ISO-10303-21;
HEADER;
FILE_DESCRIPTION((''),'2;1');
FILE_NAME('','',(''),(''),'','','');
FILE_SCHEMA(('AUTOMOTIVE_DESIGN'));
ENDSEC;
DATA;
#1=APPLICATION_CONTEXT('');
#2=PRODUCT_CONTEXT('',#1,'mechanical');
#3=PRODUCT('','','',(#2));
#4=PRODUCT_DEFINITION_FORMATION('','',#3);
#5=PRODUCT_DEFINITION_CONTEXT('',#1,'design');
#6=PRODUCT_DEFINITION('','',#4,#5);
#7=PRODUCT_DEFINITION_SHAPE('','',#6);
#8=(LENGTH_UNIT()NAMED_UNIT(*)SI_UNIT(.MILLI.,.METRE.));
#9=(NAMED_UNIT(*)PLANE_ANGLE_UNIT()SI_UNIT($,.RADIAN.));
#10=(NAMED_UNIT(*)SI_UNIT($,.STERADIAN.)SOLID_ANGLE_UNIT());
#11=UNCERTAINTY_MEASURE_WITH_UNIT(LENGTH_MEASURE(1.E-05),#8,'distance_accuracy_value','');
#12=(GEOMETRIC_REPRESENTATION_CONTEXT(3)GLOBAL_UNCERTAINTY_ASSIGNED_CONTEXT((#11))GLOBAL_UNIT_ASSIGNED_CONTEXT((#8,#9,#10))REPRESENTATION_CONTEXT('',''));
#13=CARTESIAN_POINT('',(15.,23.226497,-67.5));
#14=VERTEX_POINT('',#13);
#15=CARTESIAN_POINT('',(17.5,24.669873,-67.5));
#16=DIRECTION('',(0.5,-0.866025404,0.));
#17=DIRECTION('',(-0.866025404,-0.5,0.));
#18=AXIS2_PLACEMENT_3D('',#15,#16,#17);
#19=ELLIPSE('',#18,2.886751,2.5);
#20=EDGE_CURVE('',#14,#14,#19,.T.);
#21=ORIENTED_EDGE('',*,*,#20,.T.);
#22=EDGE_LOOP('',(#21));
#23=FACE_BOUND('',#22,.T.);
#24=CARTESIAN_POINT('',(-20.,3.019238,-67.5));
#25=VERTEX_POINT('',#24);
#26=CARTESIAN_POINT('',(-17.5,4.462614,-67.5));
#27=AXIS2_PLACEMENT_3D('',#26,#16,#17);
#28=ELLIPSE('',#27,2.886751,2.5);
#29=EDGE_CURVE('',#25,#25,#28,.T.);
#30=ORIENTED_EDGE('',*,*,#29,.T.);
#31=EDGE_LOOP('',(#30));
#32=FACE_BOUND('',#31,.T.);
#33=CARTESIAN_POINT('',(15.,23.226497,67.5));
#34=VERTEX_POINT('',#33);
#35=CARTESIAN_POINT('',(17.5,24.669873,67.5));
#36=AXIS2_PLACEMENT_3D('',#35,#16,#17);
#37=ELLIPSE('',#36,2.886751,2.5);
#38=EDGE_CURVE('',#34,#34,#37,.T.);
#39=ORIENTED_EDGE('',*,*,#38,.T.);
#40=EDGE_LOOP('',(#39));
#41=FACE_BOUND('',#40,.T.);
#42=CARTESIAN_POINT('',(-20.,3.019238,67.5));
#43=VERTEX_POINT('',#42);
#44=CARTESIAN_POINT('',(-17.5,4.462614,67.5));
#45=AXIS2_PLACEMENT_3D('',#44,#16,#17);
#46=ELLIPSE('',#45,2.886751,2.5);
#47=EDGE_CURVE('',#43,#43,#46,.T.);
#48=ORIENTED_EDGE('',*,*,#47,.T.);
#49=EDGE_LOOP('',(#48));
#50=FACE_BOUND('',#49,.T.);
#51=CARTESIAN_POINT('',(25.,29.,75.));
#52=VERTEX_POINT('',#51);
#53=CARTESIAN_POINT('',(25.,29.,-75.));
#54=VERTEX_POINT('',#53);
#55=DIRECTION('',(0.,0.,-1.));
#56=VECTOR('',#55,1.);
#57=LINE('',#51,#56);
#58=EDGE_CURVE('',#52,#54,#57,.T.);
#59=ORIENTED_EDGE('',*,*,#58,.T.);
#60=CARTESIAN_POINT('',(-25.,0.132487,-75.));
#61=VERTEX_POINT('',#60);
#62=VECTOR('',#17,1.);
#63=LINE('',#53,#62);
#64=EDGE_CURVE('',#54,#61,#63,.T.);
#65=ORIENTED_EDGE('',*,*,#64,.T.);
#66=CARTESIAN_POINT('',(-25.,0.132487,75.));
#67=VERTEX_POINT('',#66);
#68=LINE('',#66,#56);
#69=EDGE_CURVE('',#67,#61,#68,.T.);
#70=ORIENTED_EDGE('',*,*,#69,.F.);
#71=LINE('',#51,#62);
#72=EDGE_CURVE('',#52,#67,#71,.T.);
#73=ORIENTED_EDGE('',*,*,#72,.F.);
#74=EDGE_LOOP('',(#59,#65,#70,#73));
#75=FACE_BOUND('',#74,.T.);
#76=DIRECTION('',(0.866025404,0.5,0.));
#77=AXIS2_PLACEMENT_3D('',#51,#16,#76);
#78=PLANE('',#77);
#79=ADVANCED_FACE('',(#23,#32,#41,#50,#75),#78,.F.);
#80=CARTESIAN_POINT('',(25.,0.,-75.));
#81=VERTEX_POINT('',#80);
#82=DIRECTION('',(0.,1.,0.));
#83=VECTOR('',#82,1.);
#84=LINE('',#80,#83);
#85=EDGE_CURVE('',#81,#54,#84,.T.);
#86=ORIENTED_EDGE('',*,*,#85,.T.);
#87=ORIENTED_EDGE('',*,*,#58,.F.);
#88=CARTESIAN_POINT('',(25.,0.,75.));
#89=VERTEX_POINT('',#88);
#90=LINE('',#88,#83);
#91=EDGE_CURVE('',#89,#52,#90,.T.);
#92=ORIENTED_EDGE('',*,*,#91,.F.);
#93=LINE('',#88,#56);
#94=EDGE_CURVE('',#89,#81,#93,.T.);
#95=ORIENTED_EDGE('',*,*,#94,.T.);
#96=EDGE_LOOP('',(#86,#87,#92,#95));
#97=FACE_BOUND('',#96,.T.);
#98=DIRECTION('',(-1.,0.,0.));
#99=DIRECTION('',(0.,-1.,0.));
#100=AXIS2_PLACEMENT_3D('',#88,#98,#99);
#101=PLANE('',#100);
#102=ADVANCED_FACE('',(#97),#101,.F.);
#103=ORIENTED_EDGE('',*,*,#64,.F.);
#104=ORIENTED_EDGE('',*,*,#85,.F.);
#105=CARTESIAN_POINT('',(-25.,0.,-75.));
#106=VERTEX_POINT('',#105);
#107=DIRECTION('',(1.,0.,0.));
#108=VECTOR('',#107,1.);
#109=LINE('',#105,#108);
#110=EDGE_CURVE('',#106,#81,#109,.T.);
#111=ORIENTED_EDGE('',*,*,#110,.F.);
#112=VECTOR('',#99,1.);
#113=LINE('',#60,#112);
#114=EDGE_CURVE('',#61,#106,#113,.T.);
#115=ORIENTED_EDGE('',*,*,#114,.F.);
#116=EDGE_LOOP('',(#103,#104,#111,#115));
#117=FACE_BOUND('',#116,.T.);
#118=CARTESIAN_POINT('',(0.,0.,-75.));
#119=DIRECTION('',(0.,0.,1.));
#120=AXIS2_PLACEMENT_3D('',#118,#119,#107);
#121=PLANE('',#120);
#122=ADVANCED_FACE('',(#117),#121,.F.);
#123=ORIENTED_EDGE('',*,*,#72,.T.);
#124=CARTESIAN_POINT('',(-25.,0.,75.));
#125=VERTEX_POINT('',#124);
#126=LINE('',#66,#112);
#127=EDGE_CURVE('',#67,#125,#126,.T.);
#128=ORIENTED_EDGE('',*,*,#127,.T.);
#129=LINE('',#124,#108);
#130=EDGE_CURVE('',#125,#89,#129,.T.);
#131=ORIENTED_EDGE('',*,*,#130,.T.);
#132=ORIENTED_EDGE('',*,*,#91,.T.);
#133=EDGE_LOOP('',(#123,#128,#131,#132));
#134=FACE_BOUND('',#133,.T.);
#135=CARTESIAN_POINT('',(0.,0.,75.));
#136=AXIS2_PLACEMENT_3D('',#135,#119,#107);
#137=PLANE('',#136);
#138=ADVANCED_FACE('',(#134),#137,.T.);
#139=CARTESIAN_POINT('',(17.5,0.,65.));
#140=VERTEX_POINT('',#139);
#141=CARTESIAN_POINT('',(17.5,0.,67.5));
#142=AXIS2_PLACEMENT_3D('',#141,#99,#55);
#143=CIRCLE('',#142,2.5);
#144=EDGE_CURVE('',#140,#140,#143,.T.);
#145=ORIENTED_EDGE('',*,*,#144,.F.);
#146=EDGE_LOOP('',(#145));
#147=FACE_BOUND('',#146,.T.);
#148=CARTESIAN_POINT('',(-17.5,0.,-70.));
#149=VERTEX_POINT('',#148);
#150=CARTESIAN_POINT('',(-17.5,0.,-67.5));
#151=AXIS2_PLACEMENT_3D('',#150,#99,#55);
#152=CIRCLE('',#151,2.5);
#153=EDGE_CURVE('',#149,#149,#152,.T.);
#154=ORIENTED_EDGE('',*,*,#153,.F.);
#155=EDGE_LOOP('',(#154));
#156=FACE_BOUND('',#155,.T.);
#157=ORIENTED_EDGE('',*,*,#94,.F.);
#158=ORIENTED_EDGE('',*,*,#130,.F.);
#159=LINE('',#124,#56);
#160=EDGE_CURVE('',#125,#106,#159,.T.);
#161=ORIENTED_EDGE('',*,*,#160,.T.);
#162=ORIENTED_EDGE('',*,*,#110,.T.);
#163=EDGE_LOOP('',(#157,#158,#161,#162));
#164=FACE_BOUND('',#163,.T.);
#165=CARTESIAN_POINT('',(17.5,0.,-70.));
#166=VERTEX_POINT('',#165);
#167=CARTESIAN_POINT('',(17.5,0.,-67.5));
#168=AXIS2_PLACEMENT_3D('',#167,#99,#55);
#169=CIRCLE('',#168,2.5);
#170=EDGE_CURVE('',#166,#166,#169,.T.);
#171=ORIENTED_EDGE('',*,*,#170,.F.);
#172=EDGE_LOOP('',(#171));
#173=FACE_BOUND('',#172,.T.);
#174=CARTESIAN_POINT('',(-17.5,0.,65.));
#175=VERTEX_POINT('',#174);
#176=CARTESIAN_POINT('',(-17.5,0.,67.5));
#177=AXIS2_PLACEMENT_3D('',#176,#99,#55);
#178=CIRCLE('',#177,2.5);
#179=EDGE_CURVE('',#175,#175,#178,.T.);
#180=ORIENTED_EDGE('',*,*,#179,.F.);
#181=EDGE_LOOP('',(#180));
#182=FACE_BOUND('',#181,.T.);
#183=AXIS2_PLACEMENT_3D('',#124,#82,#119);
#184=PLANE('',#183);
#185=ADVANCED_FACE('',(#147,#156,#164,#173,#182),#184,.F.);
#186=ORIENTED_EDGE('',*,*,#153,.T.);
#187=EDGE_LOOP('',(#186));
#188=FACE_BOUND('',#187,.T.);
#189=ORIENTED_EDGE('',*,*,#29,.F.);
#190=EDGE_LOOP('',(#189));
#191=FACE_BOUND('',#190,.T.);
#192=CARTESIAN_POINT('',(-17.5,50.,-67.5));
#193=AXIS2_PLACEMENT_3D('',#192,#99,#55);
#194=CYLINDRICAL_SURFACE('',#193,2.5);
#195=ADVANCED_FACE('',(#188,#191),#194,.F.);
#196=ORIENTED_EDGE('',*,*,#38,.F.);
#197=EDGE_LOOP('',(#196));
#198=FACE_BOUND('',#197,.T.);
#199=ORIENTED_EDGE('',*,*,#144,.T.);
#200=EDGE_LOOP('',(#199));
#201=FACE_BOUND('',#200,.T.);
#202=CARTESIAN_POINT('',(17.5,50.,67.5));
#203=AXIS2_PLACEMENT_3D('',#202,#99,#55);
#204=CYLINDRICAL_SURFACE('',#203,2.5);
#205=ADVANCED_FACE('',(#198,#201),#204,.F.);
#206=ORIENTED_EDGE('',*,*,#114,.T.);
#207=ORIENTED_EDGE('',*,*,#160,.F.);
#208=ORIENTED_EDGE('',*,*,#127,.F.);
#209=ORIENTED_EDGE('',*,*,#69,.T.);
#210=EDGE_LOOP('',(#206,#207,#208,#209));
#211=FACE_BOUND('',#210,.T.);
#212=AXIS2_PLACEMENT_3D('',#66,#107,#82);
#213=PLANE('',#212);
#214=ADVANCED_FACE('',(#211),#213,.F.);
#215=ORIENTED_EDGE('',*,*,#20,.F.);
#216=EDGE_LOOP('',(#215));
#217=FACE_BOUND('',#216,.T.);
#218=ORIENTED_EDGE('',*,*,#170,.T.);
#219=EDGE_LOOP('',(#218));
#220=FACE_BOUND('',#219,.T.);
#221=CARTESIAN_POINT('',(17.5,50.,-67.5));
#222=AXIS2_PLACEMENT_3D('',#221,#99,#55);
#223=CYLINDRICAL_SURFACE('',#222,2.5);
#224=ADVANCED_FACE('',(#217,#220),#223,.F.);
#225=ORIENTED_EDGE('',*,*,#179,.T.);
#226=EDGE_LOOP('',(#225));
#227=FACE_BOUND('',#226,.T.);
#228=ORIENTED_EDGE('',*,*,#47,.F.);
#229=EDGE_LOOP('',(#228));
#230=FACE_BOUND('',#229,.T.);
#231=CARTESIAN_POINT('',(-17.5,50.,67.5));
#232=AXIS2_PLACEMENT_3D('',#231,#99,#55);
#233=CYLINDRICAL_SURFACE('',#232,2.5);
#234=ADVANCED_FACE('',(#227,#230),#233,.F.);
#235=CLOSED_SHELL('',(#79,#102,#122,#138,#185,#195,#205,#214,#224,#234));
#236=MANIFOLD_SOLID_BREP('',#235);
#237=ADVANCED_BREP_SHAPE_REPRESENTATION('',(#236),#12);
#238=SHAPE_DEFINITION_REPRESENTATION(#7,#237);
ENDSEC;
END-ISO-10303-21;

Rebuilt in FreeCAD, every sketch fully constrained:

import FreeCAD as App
import Part
import Sketcher
from FreeCAD import Vector
Q = App.Units.Quantity

doc = App.newDocument("Part")
body = doc.addObject("PartDesign::Body", "Body")

# Sketch on XY plane
sketch1 = body.newObject("Sketcher::SketchObject", "Sketch")
sketch1.AttachmentSupport = (doc.getObject("XY_Plane"), [""])
sketch1.MapMode = "FlatFace"
sketch1.addGeometry(Part.LineSegment(Vector(-25, 0, 0), Vector(25, 0, 0)), False)
sketch1.addGeometry(Part.LineSegment(Vector(25, 0, 0), Vector(25, 29, 0)), False)
sketch1.addGeometry(Part.LineSegment(Vector(25, 29, 0), Vector(-25, 0.13, 0)), False)
sketch1.addGeometry(Part.LineSegment(Vector(-25, 0.13, 0), Vector(-25, 0, 0)), False)
sketch1.addConstraint(Sketcher.Constraint("Coincident", 0, 2, 1, 1))
sketch1.addConstraint(Sketcher.Constraint("Coincident", 1, 2, 2, 1))
sketch1.addConstraint(Sketcher.Constraint("Coincident", 2, 2, 3, 1))
sketch1.addConstraint(Sketcher.Constraint("Coincident", 3, 2, 0, 1))
sketch1.addConstraint(Sketcher.Constraint("Horizontal", 0))
sketch1.addConstraint(Sketcher.Constraint("Vertical", 1))
sketch1.addConstraint(Sketcher.Constraint("Vertical", 3))
sketch1.addConstraint(Sketcher.Constraint("Symmetric", 0, 2, 3, 2, -1, 1))
sketch1.addConstraint(Sketcher.Constraint("DistanceX", 0, 1, 0, 2, Q("50 mm")))
sketch1.addConstraint(Sketcher.Constraint("DistanceY", 1, 1, 1, 2, Q("29 mm")))
sketch1.addConstraint(Sketcher.Constraint("Angle", 2, Q("-150 deg")))
pad1 = body.newObject("PartDesign::Pad", "Pad")
pad1.Profile = sketch1
pad1.Length = 150
pad1.Midplane = True

# Sketch on XZ plane
sketch2 = body.newObject("Sketcher::SketchObject", "Sketch001")
sketch2.AttachmentSupport = (doc.getObject("XZ_Plane"), [""])
sketch2.MapMode = "FlatFace"
sketch2.addGeometry(Part.Circle(Vector(-17.5, 67.5, 0), Vector(0, 0, 1), 2.5), False)
sketch2.addGeometry(Part.Circle(Vector(17.5, 67.5, 0), Vector(0, 0, 1), 2.5), False)
sketch2.addGeometry(Part.Circle(Vector(-17.5, -67.5, 0), Vector(0, 0, 1), 2.5), False)
sketch2.addGeometry(Part.Circle(Vector(17.5, -67.5, 0), Vector(0, 0, 1), 2.5), False)
sketch2.addConstraint(Sketcher.Constraint("Equal", 0, 1))
sketch2.addConstraint(Sketcher.Constraint("Equal", 1, 2))
sketch2.addConstraint(Sketcher.Constraint("Equal", 2, 3))
sketch2.addConstraint(Sketcher.Constraint("Symmetric", 1, 3, 2, 3, -1, 1))
sketch2.addConstraint(Sketcher.Constraint("Symmetric", 0, 3, 3, 3, -1, 1))
sketch2.addConstraint(Sketcher.Constraint("Symmetric", 0, 3, 1, 3, -2))
sketch2.addConstraint(Sketcher.Constraint("Diameter", 0, Q("5 mm")))
sketch2.addConstraint(Sketcher.Constraint("DistanceX", 0, 3, 1, 3, Q("35 mm")))
sketch2.addConstraint(Sketcher.Constraint("DistanceY", 2, 3, 0, 3, Q("135 mm")))
pocket1 = body.newObject("PartDesign::Pocket", "Pocket")
pocket1.Profile = sketch2
pocket1.Length = 50

doc.recompute()
